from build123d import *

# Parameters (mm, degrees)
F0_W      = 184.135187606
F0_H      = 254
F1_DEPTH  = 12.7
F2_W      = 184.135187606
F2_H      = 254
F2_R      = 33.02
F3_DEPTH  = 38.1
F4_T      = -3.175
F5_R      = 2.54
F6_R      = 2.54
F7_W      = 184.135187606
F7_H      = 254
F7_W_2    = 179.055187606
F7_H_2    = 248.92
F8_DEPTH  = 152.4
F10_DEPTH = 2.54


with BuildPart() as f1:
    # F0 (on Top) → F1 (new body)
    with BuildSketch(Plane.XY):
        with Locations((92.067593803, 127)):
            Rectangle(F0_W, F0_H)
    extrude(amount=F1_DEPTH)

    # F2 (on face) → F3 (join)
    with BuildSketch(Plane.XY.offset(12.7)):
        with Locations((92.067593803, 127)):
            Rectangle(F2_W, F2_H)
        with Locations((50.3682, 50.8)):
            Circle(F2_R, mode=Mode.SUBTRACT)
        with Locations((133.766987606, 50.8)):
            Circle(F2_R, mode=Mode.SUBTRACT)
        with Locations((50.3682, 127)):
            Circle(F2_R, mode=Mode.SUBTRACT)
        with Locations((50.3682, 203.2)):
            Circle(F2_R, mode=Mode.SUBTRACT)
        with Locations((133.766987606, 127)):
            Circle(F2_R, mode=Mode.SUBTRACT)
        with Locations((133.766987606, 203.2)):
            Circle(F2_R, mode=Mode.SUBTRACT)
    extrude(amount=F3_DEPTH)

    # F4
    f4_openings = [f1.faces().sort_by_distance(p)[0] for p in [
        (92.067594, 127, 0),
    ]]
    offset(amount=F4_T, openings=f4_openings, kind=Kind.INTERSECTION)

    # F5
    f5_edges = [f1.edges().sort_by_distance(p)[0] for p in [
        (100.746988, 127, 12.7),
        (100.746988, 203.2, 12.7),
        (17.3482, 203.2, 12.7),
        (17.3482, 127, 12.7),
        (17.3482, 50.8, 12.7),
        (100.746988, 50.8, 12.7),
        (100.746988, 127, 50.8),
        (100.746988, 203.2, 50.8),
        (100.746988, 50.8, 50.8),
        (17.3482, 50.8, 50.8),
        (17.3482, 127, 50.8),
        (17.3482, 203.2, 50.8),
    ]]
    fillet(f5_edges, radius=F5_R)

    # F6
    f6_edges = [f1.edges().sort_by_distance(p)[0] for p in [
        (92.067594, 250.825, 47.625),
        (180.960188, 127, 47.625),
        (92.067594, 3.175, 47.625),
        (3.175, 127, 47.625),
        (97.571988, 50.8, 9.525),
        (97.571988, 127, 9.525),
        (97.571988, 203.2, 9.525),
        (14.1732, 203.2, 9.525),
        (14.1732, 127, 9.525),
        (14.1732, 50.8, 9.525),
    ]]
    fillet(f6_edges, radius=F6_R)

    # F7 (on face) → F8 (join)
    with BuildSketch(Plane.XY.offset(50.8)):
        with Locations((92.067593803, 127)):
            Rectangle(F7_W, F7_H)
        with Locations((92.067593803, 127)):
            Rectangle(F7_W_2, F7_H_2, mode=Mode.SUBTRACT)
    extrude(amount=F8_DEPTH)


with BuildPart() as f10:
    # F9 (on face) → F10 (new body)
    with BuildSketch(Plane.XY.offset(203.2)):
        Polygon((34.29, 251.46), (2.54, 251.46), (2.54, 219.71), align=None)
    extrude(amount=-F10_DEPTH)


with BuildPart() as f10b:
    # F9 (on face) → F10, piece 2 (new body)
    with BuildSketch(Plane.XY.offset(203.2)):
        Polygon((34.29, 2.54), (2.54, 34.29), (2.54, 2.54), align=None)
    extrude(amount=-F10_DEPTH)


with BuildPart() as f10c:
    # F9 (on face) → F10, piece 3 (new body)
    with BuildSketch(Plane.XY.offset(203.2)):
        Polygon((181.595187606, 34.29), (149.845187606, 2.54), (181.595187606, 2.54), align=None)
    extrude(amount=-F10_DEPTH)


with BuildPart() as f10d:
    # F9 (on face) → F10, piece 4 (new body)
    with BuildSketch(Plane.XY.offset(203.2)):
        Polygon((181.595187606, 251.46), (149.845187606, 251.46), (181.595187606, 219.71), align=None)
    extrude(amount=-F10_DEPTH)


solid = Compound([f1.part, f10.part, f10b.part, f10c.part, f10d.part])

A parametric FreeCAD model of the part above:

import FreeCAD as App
import Part
import Sketcher
from FreeCAD import Vector
Q = App.Units.Quantity


def edges_at(feature, points):
    """Names of the edges that pass closest to the given points."""
    edges = feature.Shape.Edges
    near = lambda p: min(range(len(edges)), key=lambda i: edges[i].distToShape(Part.Vertex(*p))[0])
    return sorted({f"Edge{near(p) + 1}" for p in points})


def faces_at(feature, points):
    """Names of the faces that lie closest to the given points."""
    faces = feature.Shape.Faces
    near = lambda p: min(range(len(faces)), key=lambda i: faces[i].distToShape(Part.Vertex(*p))[0])
    return sorted({f"Face{near(p) + 1}" for p in points})


def add_polygon(sketch, points):
    """Adds a closed chain of lines whose ends are joined by coincident constraints."""
    first, n = sketch.GeometryCount, len(points)
    for a, b in zip(points, points[1:] + points[:1]):
        sketch.addGeometry(Part.LineSegment(App.Vector(*a, 0), App.Vector(*b, 0)), False)
    for i in range(n):
        sketch.addConstraint(Sketcher.Constraint("Coincident", first + i, 2, first + (i + 1) % n, 1))

doc = App.newDocument("Part")
params = doc.addObject("Spreadsheet::Sheet", "Params")
for row, (alias, value) in enumerate([
    ("sketch1_height", "10 in"),
    ("pad1_length", "0.5 in"),
    ("sketch2_diameter", "2.6 in"),
    ("sketch2_height", "10 in"),
    ("pad2_length", "1.5 in"),
    ("thickness_wall", "0.125 in"),
    ("fillet_radius", "0.1 in"),
    ("fillet2_radius", "0.1 in"),
    ("sketch3_height", "10 in"),
    ("sketch3_height2", "9.8 in"),
    ("pad3_length", "6 in"),
    ("sketch4_width", "1.25 in"),
    ("pad4_length", "0.1 in"),
    ("sketch5_width", "1.25 in"),
    ("pad5_length", "0.1 in"),
    ("sketch6_width", "1.25 in"),
    ("pad6_length", "0.1 in"),
    ("sketch7_width", "1.25 in"),
    ("pad7_length", "0.1 in"),
], start=1):
    params.set(f"A{row}", alias)
    params.set(f"B{row}", "=" + value)
    params.setAlias(f"B{row}", alias)

body = doc.addObject("PartDesign::Body", "Body")

# Sketch on XY plane
sketch1 = body.newObject("Sketcher::SketchObject", "Sketch")
sketch1.AttachmentSupport = (doc.getObject("XY_Plane"), [""])
sketch1.MapMode = "FlatFace"
add_polygon(sketch1, [(0, 254), (0, 0), (184, 0), (184, 254)])  # lines 0-3
sketch1.addConstraint(Sketcher.Constraint("Vertical", 0))
sketch1.addConstraint(Sketcher.Constraint("Horizontal", 1))
sketch1.addConstraint(Sketcher.Constraint("Vertical", 2))
sketch1.addConstraint(Sketcher.Constraint("Horizontal", 3))
sketch1.addConstraint(Sketcher.Constraint("Coincident", 0, 2, -1, 1))
sketch1.addConstraint(Sketcher.Constraint("DistanceY", 0, 2, 0, 1, Q("10 in")))
sketch1.addConstraint(Sketcher.Constraint("DistanceX", 1, 1, 1, 2, 184.135188))
sketch1.setExpression("Constraints[9]", "Params.sketch1_height")
pad1 = body.newObject("PartDesign::Pad", "Pad")
pad1.Profile = sketch1
pad1.setExpression("Length", "Params.pad1_length")

# Sketch on XY plane
sketch2 = body.newObject("Sketcher::SketchObject", "Sketch001")
sketch2.AttachmentSupport = (doc.getObject("XY_Plane"), [""])
sketch2.MapMode = "FlatFace"
sketch2.AttachmentOffset = App.Placement(Vector(0, 0, 0.5 * 25.4), App.Rotation())
add_polygon(sketch2, [(0, 254), (0, 0), (184, 0), (184, 254)])  # lines 0-3
sketch2.addGeometry(Part.Circle(Vector(50, 51, 0), Vector(0, 0, 1), 33), False)  # 4
sketch2.addGeometry(Part.Circle(Vector(134, 51, 0), Vector(0, 0, 1), 33), False)  # 5
sketch2.addGeometry(Part.Circle(Vector(50, 127, 0), Vector(0, 0, 1), 33), False)  # 6
sketch2.addGeometry(Part.Circle(Vector(50, 203, 0), Vector(0, 0, 1), 33), False)  # 7
sketch2.addGeometry(Part.Circle(Vector(134, 127, 0), Vector(0, 0, 1), 33), False)  # 8
sketch2.addGeometry(Part.Circle(Vector(134, 203, 0), Vector(0, 0, 1), 33), False)  # 9
sketch2.addConstraint(Sketcher.Constraint("Vertical", 0))
sketch2.addConstraint(Sketcher.Constraint("Horizontal", 1))
sketch2.addConstraint(Sketcher.Constraint("Vertical", 2))
sketch2.addConstraint(Sketcher.Constraint("Horizontal", 3))
sketch2.addConstraint(Sketcher.Constraint("Coincident", 0, 2, -1, 1))
sketch2.addConstraint(Sketcher.Constraint("Equal", 4, 5))
sketch2.addConstraint(Sketcher.Constraint("Equal", 5, 6))
sketch2.addConstraint(Sketcher.Constraint("Equal", 6, 7))
sketch2.addConstraint(Sketcher.Constraint("Equal", 7, 8))
sketch2.addConstraint(Sketcher.Constraint("Equal", 8, 9))
sketch2.addConstraint(Sketcher.Constraint("Horizontal", 4, 3, 5, 3))
sketch2.addConstraint(Sketcher.Constraint("Horizontal", 6, 3, 8, 3))
sketch2.addConstraint(Sketcher.Constraint("Horizontal", 7, 3, 9, 3))
sketch2.addConstraint(Sketcher.Constraint("Vertical", 4, 3, 6, 3))
sketch2.addConstraint(Sketcher.Constraint("Vertical", 6, 3, 7, 3))
sketch2.addConstraint(Sketcher.Constraint("Vertical", 5, 3, 8, 3))
sketch2.addConstraint(Sketcher.Constraint("Vertical", 8, 3, 9, 3))
sketch2.addConstraint(Sketcher.Constraint("Diameter", 4, Q("2.6 in")))
sketch2.addConstraint(Sketcher.Constraint("DistanceY", 0, 2, 0, 1, Q("10 in")))
sketch2.addConstraint(Sketcher.Constraint("DistanceY", -1, 1, 4, 3, Q("2 in")))
sketch2.addConstraint(Sketcher.Constraint("DistanceY", -1, 1, 6, 3, Q("5 in")))
sketch2.addConstraint(Sketcher.Constraint("DistanceY", -1, 1, 7, 3, Q("8 in")))
sketch2.addConstraint(Sketcher.Constraint("DistanceX", -1, 1, 4, 3, Q("1.983 in")))
sketch2.addConstraint(Sketcher.Constraint("DistanceX", 5, 3, 1, 2, Q("1.983 in")))
sketch2.addConstraint(Sketcher.Constraint("DistanceX", 1, 1, 1, 2, 184.135188))
sketch2.setExpression("Constraints[21]", "Params.sketch2_diameter")
sketch2.setExpression("Constraints[22]", "Params.sketch2_height")
pad2 = body.newObject("PartDesign::Pad", "Pad001")
pad2.Profile = sketch2
pad2.setExpression("Length", "Params.pad2_length")
doc.recompute()

thickness = body.newObject("PartDesign::Thickness", "Thickness")
thickness.Base = (pad2, faces_at(pad2, [(92.068, 127, 0)]))
thickness.setExpression("Value", "Params.thickness_wall")
thickness.Reversed = True
thickness.Join = "Intersection"
doc.recompute()

fillet = body.newObject("PartDesign::Fillet", "Fillet")
fillet.Base = (thickness, edges_at(thickness, [
    (100.747, 127, 12.7),
    (100.747, 203.2, 12.7),
    (17.348, 203.2, 12.7),
    (17.348, 127, 12.7),
    (17.348, 50.8, 12.7),
    (100.747, 50.8, 12.7),
    (100.747, 127, 50.8),
    (100.747, 203.2, 50.8),
    (100.747, 50.8, 50.8),
    (17.348, 50.8, 50.8),
    (17.348, 127, 50.8),
    (17.348, 203.2, 50.8),
]))
fillet.setExpression("Radius", "Params.fillet_radius")
doc.recompute()

fillet2 = body.newObject("PartDesign::Fillet", "Fillet001")
fillet2.Base = (fillet, edges_at(fillet, [
    (92.068, 250.825, 47.625),
    (180.96, 127, 47.625),
    (92.068, 3.175, 47.625),
    (3.175, 127, 47.625),
    (97.572, 50.8, 9.525),
    (97.572, 127, 9.525),
    (97.572, 203.2, 9.525),
    (14.173, 203.2, 9.525),
    (14.173, 127, 9.525),
    (14.173, 50.8, 9.525),
]))
fillet2.setExpression("Radius", "Params.fillet2_radius")

# Sketch on XY plane
sketch3 = body.newObject("Sketcher::SketchObject", "Sketch002")
sketch3.AttachmentSupport = (doc.getObject("XY_Plane"), [""])
sketch3.MapMode = "FlatFace"
sketch3.AttachmentOffset = App.Placement(Vector(0, 0, 2 * 25.4), App.Rotation())
add_polygon(sketch3, [(0, 254), (0, 0), (184, 0), (184, 254)])  # lines 0-3
add_polygon(sketch3, [(182, 3), (3, 3), (3, 251), (182, 251)])  # lines 4-7
sketch3.addConstraint(Sketcher.Constraint("Vertical", 0))
sketch3.addConstraint(Sketcher.Constraint("Horizontal", 1))
sketch3.addConstraint(Sketcher.Constraint("Vertical", 2))
sketch3.addConstraint(Sketcher.Constraint("Horizontal", 3))
sketch3.addConstraint(Sketcher.Constraint("Horizontal", 4))
sketch3.addConstraint(Sketcher.Constraint("Vertical", 5))
sketch3.addConstraint(Sketcher.Constraint("Horizontal", 6))
sketch3.addConstraint(Sketcher.Constraint("Vertical", 7))
sketch3.addConstraint(Sketcher.Constraint("Coincident", 0, 2, -1, 1))
sketch3.addConstraint(Sketcher.Constraint("DistanceY", 0, 2, 0, 1, Q("10 in")))
sketch3.addConstraint(Sketcher.Constraint("DistanceY", 5, 1, 5, 2, Q("9.8 in")))
sketch3.addConstraint(Sketcher.Constraint("DistanceX", -1, 1, 4, 2, Q("0.1 in")))
sketch3.addConstraint(Sketcher.Constraint("DistanceY", -1, 1, 4, 2, Q("0.1 in")))
sketch3.addConstraint(Sketcher.Constraint("DistanceX", 6, 2, 2, 2, Q("0.1 in")))
sketch3.addConstraint(Sketcher.Constraint("DistanceX", 1, 1, 1, 2, 184.135188))
sketch3.setExpression("Constraints[17]", "Params.sketch3_height")
sketch3.setExpression("Constraints[18]", "Params.sketch3_height2")
pad3 = body.newObject("PartDesign::Pad", "Pad002")
pad3.Profile = sketch3
pad3.setExpression("Length", "Params.pad3_length")
body2 = doc.addObject("PartDesign::Body", "Body001")

# Sketch on XY plane
sketch4 = body2.newObject("Sketcher::SketchObject", "Sketch003")
sketch4.AttachmentSupport = (doc.getObject("XY_Plane001"), [""])
sketch4.MapMode = "FlatFace"
sketch4.AttachmentOffset = App.Placement(Vector(0, 0, 8 * 25.4), App.Rotation())
add_polygon(sketch4, [(34, 251), (3, 251), (3, 220)])  # lines 0-2
sketch4.addConstraint(Sketcher.Constraint("Horizontal", 0))
sketch4.addConstraint(Sketcher.Constraint("Vertical", 1))
sketch4.addConstraint(Sketcher.Constraint("Equal", 0, 1))
sketch4.addConstraint(Sketcher.Constraint("DistanceX", 0, 2, 0, 1, Q("1.25 in")))
sketch4.addConstraint(Sketcher.Constraint("DistanceX", -1, 1, 0, 2, Q("0.1 in")))
sketch4.addConstraint(Sketcher.Constraint("DistanceY", -1, 1, 0, 2, Q("9.9 in")))
sketch4.setExpression("Constraints[6]", "Params.sketch4_width")
pad4 = body2.newObject("PartDesign::Pad", "Pad003")
pad4.Profile = sketch4
pad4.setExpression("Length", "Params.pad4_length")
pad4.Reversed = True
body3 = doc.addObject("PartDesign::Body", "Body002")

# Sketch on XY plane
sketch5 = body3.newObject("Sketcher::SketchObject", "Sketch004")
sketch5.AttachmentSupport = (doc.getObject("XY_Plane002"), [""])
sketch5.MapMode = "FlatFace"
sketch5.AttachmentOffset = App.Placement(Vector(0, 0, 8 * 25.4), App.Rotation())
add_polygon(sketch5, [(34, 3), (3, 34), (3, 3)])  # lines 0-2
sketch5.addConstraint(Sketcher.Constraint("Vertical", 1))
sketch5.addConstraint(Sketcher.Constraint("Horizontal", 2))
sketch5.addConstraint(Sketcher.Constraint("Equal", 2, 1))
sketch5.addConstraint(Sketcher.Constraint("DistanceX", 2, 1, 2, 2, Q("1.25 in")))
sketch5.addConstraint(Sketcher.Constraint("DistanceX", -1, 1, 0, 2, Q("0.1 in")))
sketch5.addConstraint(Sketcher.Constraint("DistanceY", -1, 1, 1, 2, Q("0.1 in")))
sketch5.setExpression("Constraints[6]", "Params.sketch5_width")
pad5 = body3.newObject("PartDesign::Pad", "Pad004")
pad5.Profile = sketch5
pad5.setExpression("Length", "Params.pad5_length")
pad5.Reversed = True
body4 = doc.addObject("PartDesign::Body", "Body003")

# Sketch on XY plane
sketch6 = body4.newObject("Sketcher::SketchObject", "Sketch005")
sketch6.AttachmentSupport = (doc.getObject("XY_Plane003"), [""])
sketch6.MapMode = "FlatFace"
sketch6.AttachmentOffset = App.Placement(Vector(0, 0, 8 * 25.4), App.Rotation())
add_polygon(sketch6, [(182, 34), (150, 3), (182, 3)])  # lines 0-2
sketch6.addConstraint(Sketcher.Constraint("Horizontal", 1))
sketch6.addConstraint(Sketcher.Constraint("Vertical", 2))
sketch6.addConstraint(Sketcher.Constraint("Equal", 1, 2))
sketch6.addConstraint(Sketcher.Constraint("DistanceX", 1, 1, 1, 2, Q("1.25 in")))
sketch6.addConstraint(Sketcher.Constraint("DistanceY", -1, 1, 0, 2, Q("0.1 in")))
sketch6.addConstraint(Sketcher.Constraint("DistanceX", -1, 1, 0, 2, 149.845188))
sketch6.setExpression("Constraints[6]", "Params.sketch6_width")
pad6 = body4.newObject("PartDesign::Pad", "Pad005")
pad6.Profile = sketch6
pad6.setExpression("Length", "Params.pad6_length")
pad6.Reversed = True
body5 = doc.addObject("PartDesign::Body", "Body004")

# Sketch on XY plane
sketch7 = body5.newObject("Sketcher::SketchObject", "Sketch006")
sketch7.AttachmentSupport = (doc.getObject("XY_Plane004"), [""])
sketch7.MapMode = "FlatFace"
sketch7.AttachmentOffset = App.Placement(Vector(0, 0, 8 * 25.4), App.Rotation())
add_polygon(sketch7, [(182, 251), (150, 251), (182, 220)])  # lines 0-2
sketch7.addConstraint(Sketcher.Constraint("Horizontal", 0))
sketch7.addConstraint(Sketcher.Constraint("Vertical", 2))
sketch7.addConstraint(Sketcher.Constraint("Equal", 0, 2))
sketch7.addConstraint(Sketcher.Constraint("DistanceX", 0, 2, 0, 1, Q("1.25 in")))
sketch7.addConstraint(Sketcher.Constraint("DistanceY", -1, 1, 0, 2, Q("9.9 in")))
sketch7.addConstraint(Sketcher.Constraint("DistanceX", -1, 1, 0, 2, 149.845188))
sketch7.setExpression("Constraints[6]", "Params.sketch7_width")
pad7 = body5.newObject("PartDesign::Pad", "Pad006")
pad7.Profile = sketch7
pad7.setExpression("Length", "Params.pad7_length")
pad7.Reversed = True

doc.recompute()
